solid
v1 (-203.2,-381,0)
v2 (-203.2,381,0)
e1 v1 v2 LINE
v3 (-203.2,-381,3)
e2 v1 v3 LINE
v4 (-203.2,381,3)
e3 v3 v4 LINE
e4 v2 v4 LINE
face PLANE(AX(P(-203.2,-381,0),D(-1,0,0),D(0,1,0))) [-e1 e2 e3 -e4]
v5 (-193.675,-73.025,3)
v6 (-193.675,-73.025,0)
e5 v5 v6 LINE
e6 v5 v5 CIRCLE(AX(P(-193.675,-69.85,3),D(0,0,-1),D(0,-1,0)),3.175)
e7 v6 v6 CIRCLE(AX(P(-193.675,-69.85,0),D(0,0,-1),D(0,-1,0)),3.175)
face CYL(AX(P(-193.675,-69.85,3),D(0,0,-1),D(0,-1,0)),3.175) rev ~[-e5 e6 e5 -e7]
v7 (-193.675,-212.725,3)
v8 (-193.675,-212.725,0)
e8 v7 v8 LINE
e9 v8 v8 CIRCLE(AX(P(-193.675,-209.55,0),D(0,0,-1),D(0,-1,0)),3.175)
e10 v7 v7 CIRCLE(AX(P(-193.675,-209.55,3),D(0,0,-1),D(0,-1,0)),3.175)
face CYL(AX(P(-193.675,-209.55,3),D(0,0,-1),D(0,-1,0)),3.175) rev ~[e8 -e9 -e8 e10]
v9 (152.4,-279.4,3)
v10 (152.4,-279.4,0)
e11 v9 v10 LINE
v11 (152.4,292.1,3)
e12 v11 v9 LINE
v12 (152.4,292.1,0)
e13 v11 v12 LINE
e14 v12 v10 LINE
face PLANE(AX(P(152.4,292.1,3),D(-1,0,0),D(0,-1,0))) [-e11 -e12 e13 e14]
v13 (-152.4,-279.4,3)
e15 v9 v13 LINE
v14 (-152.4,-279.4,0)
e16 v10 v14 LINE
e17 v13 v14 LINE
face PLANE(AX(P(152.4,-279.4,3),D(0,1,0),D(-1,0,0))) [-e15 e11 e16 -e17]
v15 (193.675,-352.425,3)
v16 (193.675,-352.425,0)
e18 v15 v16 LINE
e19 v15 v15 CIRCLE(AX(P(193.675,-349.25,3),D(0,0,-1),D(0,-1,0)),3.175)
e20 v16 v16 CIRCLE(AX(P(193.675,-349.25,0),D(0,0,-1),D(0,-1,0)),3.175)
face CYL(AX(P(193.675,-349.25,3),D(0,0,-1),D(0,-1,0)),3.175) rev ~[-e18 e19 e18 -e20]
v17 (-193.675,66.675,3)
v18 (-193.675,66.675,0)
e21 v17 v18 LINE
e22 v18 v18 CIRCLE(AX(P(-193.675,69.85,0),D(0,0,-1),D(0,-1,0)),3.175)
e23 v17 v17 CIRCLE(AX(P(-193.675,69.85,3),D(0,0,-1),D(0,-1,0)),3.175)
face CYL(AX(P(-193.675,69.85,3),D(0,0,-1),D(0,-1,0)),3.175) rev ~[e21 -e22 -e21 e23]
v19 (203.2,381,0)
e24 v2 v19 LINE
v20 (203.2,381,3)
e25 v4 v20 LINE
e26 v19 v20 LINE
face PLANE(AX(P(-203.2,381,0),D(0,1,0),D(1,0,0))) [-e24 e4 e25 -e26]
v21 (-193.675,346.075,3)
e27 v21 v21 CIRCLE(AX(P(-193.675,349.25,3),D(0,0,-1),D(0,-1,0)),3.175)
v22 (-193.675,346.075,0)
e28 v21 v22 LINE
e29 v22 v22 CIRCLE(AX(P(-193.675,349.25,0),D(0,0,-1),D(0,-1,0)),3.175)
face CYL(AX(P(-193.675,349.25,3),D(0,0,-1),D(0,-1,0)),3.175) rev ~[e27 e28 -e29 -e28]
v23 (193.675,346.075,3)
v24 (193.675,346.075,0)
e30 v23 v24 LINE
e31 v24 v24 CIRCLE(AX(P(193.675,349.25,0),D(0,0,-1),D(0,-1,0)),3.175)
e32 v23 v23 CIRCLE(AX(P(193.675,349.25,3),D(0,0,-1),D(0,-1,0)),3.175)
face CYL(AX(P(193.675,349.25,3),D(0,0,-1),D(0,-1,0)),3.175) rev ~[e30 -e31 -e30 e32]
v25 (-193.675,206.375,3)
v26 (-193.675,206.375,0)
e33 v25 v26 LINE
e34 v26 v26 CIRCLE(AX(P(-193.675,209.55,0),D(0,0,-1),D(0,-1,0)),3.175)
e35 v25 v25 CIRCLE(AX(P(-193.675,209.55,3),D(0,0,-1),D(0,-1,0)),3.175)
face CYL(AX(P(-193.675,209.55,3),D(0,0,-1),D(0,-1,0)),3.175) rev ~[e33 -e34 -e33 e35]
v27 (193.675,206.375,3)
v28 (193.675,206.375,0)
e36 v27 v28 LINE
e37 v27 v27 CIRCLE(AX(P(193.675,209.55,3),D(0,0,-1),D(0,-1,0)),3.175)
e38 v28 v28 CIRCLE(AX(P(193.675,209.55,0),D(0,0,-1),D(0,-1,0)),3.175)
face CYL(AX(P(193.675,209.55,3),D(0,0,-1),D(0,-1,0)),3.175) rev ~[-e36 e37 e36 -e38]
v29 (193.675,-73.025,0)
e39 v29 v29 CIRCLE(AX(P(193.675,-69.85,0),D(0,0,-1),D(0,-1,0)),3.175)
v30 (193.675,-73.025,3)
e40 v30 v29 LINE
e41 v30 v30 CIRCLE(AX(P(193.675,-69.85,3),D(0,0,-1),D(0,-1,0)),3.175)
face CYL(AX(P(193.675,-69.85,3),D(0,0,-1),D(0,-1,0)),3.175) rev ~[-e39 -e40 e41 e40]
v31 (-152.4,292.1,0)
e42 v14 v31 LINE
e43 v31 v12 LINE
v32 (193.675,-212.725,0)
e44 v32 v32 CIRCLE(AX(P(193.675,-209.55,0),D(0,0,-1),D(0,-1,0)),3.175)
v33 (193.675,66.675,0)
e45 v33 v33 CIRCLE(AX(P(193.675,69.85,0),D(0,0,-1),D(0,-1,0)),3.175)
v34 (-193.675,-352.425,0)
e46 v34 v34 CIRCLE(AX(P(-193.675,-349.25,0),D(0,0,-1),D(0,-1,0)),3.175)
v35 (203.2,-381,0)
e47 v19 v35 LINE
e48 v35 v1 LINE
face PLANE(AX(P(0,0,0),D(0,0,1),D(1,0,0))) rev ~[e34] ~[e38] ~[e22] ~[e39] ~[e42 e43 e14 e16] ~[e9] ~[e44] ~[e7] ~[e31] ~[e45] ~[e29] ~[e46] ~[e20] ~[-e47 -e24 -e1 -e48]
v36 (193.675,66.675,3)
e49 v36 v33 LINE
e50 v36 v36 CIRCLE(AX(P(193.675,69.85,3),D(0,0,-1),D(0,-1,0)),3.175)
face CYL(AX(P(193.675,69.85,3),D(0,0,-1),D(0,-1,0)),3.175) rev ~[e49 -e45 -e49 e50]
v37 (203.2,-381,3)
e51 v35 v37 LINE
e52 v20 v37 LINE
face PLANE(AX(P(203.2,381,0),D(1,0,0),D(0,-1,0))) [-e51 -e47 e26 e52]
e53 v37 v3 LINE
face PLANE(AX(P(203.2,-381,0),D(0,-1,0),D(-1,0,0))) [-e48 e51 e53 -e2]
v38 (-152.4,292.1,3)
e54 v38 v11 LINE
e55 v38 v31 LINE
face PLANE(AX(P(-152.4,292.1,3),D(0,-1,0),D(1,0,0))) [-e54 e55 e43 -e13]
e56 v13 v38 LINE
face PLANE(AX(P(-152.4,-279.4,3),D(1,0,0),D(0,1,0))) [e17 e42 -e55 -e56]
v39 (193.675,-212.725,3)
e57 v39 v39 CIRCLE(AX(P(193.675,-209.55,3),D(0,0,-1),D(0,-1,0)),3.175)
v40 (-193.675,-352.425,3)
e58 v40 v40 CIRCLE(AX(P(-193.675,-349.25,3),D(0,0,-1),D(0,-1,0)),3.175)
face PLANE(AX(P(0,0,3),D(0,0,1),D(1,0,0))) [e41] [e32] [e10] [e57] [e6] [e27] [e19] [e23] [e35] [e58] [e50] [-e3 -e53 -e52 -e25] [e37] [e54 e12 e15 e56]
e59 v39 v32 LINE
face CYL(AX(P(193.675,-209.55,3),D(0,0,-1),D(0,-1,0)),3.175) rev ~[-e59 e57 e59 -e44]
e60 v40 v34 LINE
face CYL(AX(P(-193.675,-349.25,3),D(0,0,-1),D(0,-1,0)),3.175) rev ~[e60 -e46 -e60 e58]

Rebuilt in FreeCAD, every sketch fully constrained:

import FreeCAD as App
import Part
import Sketcher
from FreeCAD import Vector
Q = App.Units.Quantity

doc = App.newDocument("Part")
body = doc.addObject("PartDesign::Body", "Body")

# Sketch on XY plane
sketch1 = body.newObject("Sketcher::SketchObject", "Sketch")
sketch1.AttachmentSupport = (doc.getObject("XY_Plane"), [""])
sketch1.MapMode = "FlatFace"
sketch1.addGeometry(Part.LineSegment(Vector(203.2, 381, 0), Vector(-203.2, 381, 0)), False)
sketch1.addGeometry(Part.LineSegment(Vector(-203.2, 381, 0), Vector(-203.2, -381, 0)), False)
sketch1.addGeometry(Part.LineSegment(Vector(-203.2, -381, 0), Vector(203.2, -381, 0)), False)
sketch1.addGeometry(Part.LineSegment(Vector(203.2, -381, 0), Vector(203.2, 381, 0)), False)
sketch1.addConstraint(Sketcher.Constraint("Coincident", 0, 2, 1, 1))
sketch1.addConstraint(Sketcher.Constraint("Coincident", 1, 2, 2, 1))
sketch1.addConstraint(Sketcher.Constraint("Coincident", 2, 2, 3, 1))
sketch1.addConstraint(Sketcher.Constraint("Coincident", 3, 2, 0, 1))
sketch1.addConstraint(Sketcher.Constraint("Horizontal", 0))
sketch1.addConstraint(Sketcher.Constraint("Vertical", 1))
sketch1.addConstraint(Sketcher.Constraint("Horizontal", 2))
sketch1.addConstraint(Sketcher.Constraint("Vertical", 3))
sketch1.addConstraint(Sketcher.Constraint("Symmetric", 0, 2, 2, 2, -1, 1))
sketch1.addConstraint(Sketcher.Constraint("DistanceX", 0, 2, 0, 1, Q("16 in")))
sketch1.addConstraint(Sketcher.Constraint("DistanceY", 1, 2, 1, 1, Q("30 in")))
pad1 = body.newObject("PartDesign::Pad", "Pad")
pad1.Profile = sketch1
pad1.Length = Q("0.1181102 in")

# Sketch on XY plane
sketch2 = body.newObject("Sketcher::SketchObject", "Sketch001")
sketch2.AttachmentSupport = (doc.getObject("XY_Plane"), [""])
sketch2.MapMode = "FlatFace"
sketch2.AttachmentOffset = App.Placement(Vector(0, 0, 0.1181102 * 25.4), App.Rotation())
sketch2.addGeometry(Part.LineSegment(Vector(152.4, 292.1, 0), Vector(-152.4, 292.1, 0)), False)
sketch2.addGeometry(Part.LineSegment(Vector(-152.4, 292.1, 0), Vector(-152.4, -279.4, 0)), False)
sketch2.addGeometry(Part.LineSegment(Vector(-152.4, -279.4, 0), Vector(152.4, -279.4, 0)), False)
sketch2.addGeometry(Part.LineSegment(Vector(152.4, -279.4, 0), Vector(152.4, 292.1, 0)), False)
sketch2.addConstraint(Sketcher.Constraint("Coincident", 0, 2, 1, 1))
sketch2.addConstraint(Sketcher.Constraint("Coincident", 1, 2, 2, 1))
sketch2.addConstraint(Sketcher.Constraint("Coincident", 2, 2, 3, 1))
sketch2.addConstraint(Sketcher.Constraint("Coincident", 3, 2, 0, 1))
sketch2.addConstraint(Sketcher.Constraint("Horizontal", 0))
sketch2.addConstraint(Sketcher.Constraint("Vertical", 1))
sketch2.addConstraint(Sketcher.Constraint("Horizontal", 2))
sketch2.addConstraint(Sketcher.Constraint("Vertical", 3))
sketch2.addConstraint(Sketcher.Constraint("DistanceY", 1, 2, 1, 1, Q("22.5 in")))
sketch2.addConstraint(Sketcher.Constraint("DistanceX", 0, 2, 0, 1, Q("12 in")))
sketch2.addConstraint(Sketcher.Constraint("DistanceX", 0, 2, -1, 1, Q("6 in")))
sketch2.addConstraint(Sketcher.Constraint("DistanceY", 1, 2, -1, 1, Q("11 in")))
pocket1 = body.newObject("PartDesign::Pocket", "Pocket")
pocket1.Profile = sketch2
pocket1.Length = Q("0.1181102 in")

# Sketch on XY plane
sketch3 = body.newObject("Sketcher::SketchObject", "Sketch002")
sketch3.AttachmentSupport = (doc.getObject("XY_Plane"), [""])
sketch3.MapMode = "FlatFace"
sketch3.AttachmentOffset = App.Placement(Vector(0, 0, 0.1181102 * 25.4), App.Rotation())
sketch3.addGeometry(Part.Circle(Vector(-193.675, 349.25, 0), Vector(0, 0, 1), 3.175), False)
sketch3.addGeometry(Part.Circle(Vector(-193.675, 209.55, 0), Vector(0, 0, 1), 3.175), False)
sketch3.addGeometry(Part.Circle(Vector(-193.675, 69.85, 0), Vector(0, 0, 1), 3.175), False)
sketch3.addGeometry(Part.Circle(Vector(-193.675, -69.85, 0), Vector(0, 0, 1), 3.175), False)
sketch3.addGeometry(Part.Circle(Vector(-193.675, -209.55, 0), Vector(0, 0, 1), 3.175), False)
sketch3.addGeometry(Part.Circle(Vector(-193.675, -349.25, 0), Vector(0, 0, 1), 3.175), False)
sketch3.addGeometry(Part.Circle(Vector(193.675, 349.25, 0), Vector(0, 0, 1), 3.175), False)
sketch3.addGeometry(Part.Circle(Vector(193.675, 209.55, 0), Vector(0, 0, 1), 3.175), False)
sketch3.addGeometry(Part.Circle(Vector(193.675, 69.85, 0), Vector(0, 0, 1), 3.175), False)
sketch3.addGeometry(Part.Circle(Vector(193.675, -69.85, 0), Vector(0, 0, 1), 3.175), False)
sketch3.addGeometry(Part.Circle(Vector(193.675, -209.55, 0), Vector(0, 0, 1), 3.175), False)
sketch3.addGeometry(Part.Circle(Vector(193.675, -349.25, 0), Vector(0, 0, 1), 3.175), False)
sketch3.addConstraint(Sketcher.Constraint("Equal", 0, 1))
sketch3.addConstraint(Sketcher.Constraint("Equal", 1, 2))
sketch3.addConstraint(Sketcher.Constraint("Equal", 2, 3))
sketch3.addConstraint(Sketcher.Constraint("Equal", 3, 4))
sketch3.addConstraint(Sketcher.Constraint("Equal", 4, 5))
sketch3.addConstraint(Sketcher.Constraint("Equal", 5, 6))
sketch3.addConstraint(Sketcher.Constraint("Equal", 6, 7))
sketch3.addConstraint(Sketcher.Constraint("Equal", 7, 8))
sketch3.addConstraint(Sketcher.Constraint("Equal", 8, 9))
sketch3.addConstraint(Sketcher.Constraint("Equal", 9, 10))
sketch3.addConstraint(Sketcher.Constraint("Equal", 10, 11))
sketch3.addConstraint(Sketcher.Constraint("Symmetric", 5, 3, 6, 3, -1, 1))
sketch3.addConstraint(Sketcher.Constraint("Symmetric", 4, 3, 7, 3, -1, 1))
sketch3.addConstraint(Sketcher.Constraint("Symmetric", 3, 3, 8, 3, -1, 1))
sketch3.addConstraint(Sketcher.Constraint("Symmetric", 2, 3, 9, 3, -1, 1))
sketch3.addConstraint(Sketcher.Constraint("Symmetric", 1, 3, 10, 3, -1, 1))
sketch3.addConstraint(Sketcher.Constraint("Symmetric", 0, 3, 11, 3, -1, 1))
sketch3.addConstraint(Sketcher.Constraint("Symmetric", 0, 3, 6, 3, -2))
sketch3.addConstraint(Sketcher.Constraint("Symmetric", 1, 3, 7, 3, -2))
sketch3.addConstraint(Sketcher.Constraint("Symmetric", 2, 3, 8, 3, -2))
sketch3.addConstraint(Sketcher.Constraint("Vertical", 0, 3, 1, 3))
sketch3.addConstraint(Sketcher.Constraint("Vertical", 1, 3, 2, 3))
sketch3.addConstraint(Sketcher.Constraint("Diameter", 0, Q("0.25 in")))
sketch3.addConstraint(Sketcher.Constraint("DistanceY", 2, 3, 0, 3, Q("11 in")))
sketch3.addConstraint(Sketcher.Constraint("DistanceY", 3, 3, 1, 3, Q("11 in")))
sketch3.addConstraint(Sketcher.Constraint("DistanceY", 1, 3, 0, 3, Q("5.5 in")))
sketch3.addConstraint(Sketcher.Constraint("DistanceX", 0, 3, 6, 3, Q("15.25 in")))
doc.recompute()
hole = body.newObject("PartDesign::Hole", "Hole")
hole.Profile = sketch3
hole.ThreadType = "None"
hole.Diameter = Q("0.25 in")
hole.DepthType = "ThroughAll"

doc.recompute()
